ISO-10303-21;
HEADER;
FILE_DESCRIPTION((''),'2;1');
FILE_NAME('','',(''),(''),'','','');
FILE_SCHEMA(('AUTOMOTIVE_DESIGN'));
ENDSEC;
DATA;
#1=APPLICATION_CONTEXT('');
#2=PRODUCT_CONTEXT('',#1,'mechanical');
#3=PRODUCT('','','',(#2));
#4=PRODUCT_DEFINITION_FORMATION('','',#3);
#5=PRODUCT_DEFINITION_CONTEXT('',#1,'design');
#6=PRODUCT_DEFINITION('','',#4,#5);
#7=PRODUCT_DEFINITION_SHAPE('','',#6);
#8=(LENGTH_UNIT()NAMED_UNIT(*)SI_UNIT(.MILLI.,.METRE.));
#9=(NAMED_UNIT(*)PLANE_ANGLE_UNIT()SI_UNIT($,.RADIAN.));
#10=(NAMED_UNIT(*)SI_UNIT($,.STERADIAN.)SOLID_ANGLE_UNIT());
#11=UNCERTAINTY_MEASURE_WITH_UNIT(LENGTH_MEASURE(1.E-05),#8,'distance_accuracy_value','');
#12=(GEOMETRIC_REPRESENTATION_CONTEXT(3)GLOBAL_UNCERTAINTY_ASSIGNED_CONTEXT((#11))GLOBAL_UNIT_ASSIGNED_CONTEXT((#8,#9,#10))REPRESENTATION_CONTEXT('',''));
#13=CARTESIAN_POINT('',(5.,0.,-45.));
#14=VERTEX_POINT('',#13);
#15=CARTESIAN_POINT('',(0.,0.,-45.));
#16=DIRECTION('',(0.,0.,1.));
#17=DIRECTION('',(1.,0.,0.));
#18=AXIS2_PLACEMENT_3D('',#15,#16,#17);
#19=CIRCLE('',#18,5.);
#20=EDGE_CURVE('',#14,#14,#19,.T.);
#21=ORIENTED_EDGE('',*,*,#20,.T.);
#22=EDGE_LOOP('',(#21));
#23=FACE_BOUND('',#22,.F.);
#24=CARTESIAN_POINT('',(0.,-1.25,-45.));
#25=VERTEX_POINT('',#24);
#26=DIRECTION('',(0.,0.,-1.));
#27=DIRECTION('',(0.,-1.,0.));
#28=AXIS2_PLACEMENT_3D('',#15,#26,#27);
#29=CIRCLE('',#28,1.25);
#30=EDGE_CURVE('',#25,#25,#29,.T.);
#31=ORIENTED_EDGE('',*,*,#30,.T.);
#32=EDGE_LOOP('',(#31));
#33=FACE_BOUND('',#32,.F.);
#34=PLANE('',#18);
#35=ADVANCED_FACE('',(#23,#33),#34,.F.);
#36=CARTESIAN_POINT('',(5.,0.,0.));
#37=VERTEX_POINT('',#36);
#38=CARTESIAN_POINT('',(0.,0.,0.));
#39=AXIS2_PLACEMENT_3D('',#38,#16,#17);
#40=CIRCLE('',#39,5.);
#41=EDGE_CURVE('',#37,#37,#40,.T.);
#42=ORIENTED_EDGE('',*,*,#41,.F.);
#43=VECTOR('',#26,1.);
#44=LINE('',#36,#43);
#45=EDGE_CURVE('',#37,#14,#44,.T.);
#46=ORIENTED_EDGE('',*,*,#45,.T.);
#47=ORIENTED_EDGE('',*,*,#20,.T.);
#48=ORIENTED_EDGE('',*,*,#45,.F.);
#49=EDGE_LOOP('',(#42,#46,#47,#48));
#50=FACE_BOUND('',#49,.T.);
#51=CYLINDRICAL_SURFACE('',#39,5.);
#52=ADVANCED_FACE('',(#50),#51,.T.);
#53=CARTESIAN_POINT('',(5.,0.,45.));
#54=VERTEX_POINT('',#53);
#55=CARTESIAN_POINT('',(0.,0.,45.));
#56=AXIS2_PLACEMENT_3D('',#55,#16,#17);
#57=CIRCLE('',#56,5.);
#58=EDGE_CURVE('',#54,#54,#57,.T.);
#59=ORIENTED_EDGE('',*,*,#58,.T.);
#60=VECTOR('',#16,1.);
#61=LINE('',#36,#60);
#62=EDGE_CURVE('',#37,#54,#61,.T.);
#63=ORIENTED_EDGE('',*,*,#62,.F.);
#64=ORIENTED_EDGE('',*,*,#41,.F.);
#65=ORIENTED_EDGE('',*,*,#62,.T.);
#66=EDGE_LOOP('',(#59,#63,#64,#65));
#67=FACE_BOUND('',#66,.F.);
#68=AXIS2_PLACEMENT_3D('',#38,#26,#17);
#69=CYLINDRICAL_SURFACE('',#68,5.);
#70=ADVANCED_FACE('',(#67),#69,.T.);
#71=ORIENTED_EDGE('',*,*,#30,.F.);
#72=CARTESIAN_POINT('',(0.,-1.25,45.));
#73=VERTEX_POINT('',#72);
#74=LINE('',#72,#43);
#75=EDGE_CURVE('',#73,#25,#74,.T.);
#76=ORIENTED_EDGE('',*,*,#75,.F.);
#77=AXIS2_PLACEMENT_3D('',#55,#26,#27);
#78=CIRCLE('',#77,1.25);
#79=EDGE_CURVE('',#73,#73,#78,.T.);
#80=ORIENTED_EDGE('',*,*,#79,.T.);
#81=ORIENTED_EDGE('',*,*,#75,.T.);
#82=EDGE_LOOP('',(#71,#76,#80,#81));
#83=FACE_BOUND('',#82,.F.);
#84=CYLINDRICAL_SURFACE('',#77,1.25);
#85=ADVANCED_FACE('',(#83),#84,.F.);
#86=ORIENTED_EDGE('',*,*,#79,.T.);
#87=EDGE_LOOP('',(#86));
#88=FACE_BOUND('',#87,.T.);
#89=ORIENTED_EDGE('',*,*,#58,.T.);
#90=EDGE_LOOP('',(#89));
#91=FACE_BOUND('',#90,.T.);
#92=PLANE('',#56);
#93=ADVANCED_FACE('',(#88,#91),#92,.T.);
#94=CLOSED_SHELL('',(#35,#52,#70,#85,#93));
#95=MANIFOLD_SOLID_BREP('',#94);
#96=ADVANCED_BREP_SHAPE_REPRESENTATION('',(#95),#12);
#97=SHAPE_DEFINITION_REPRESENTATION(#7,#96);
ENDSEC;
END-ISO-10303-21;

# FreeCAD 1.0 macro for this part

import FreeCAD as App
import Part
import Sketcher

V = App.Vector

doc = App.newDocument("Part")
body = doc.addObject("PartDesign::Body", "Body")

sketch1 = body.newObject("Sketcher::SketchObject", "Sketch")
sketch1.AttachmentSupport = (doc.getObject("XY_Plane"), [""])
sketch1.MapMode = "FlatFace"
sketch1.addGeometry(Part.Circle(V(0, 0, 0), V(0, 0, 1), 5), False)
sketch1.addConstraint([
    Sketcher.Constraint("Coincident", 0, 3, -1, 1),
    Sketcher.Constraint("Diameter", 0, 10.0),
])
pad1 = body.newObject("PartDesign::Pad", "Pad")
pad1.Profile = sketch1
pad1.Length = 90
pad1.Midplane = True

sketch2 = body.newObject("Sketcher::SketchObject", "Sketch001")
sketch2.AttachmentSupport = (doc.getObject("XY_Plane"), [""])
sketch2.MapMode = "FlatFace"
sketch2.AttachmentOffset = App.Placement(V(0, 0, 45), App.Rotation())
sketch2.addGeometry(Part.Circle(V(0, 0, 0), V(0, 0, 1), 1.2), False)
sketch2.addConstraint([
    Sketcher.Constraint("Coincident", 0, 3, -1, 1),
    Sketcher.Constraint("Diameter", 0, 2.5),
])
doc.recompute()
hole = body.newObject("PartDesign::Hole", "Hole")
hole.Profile = sketch2
hole.ThreadType = "None"
hole.Diameter = 2.5
hole.DepthType = "ThroughAll"

doc.recompute()
